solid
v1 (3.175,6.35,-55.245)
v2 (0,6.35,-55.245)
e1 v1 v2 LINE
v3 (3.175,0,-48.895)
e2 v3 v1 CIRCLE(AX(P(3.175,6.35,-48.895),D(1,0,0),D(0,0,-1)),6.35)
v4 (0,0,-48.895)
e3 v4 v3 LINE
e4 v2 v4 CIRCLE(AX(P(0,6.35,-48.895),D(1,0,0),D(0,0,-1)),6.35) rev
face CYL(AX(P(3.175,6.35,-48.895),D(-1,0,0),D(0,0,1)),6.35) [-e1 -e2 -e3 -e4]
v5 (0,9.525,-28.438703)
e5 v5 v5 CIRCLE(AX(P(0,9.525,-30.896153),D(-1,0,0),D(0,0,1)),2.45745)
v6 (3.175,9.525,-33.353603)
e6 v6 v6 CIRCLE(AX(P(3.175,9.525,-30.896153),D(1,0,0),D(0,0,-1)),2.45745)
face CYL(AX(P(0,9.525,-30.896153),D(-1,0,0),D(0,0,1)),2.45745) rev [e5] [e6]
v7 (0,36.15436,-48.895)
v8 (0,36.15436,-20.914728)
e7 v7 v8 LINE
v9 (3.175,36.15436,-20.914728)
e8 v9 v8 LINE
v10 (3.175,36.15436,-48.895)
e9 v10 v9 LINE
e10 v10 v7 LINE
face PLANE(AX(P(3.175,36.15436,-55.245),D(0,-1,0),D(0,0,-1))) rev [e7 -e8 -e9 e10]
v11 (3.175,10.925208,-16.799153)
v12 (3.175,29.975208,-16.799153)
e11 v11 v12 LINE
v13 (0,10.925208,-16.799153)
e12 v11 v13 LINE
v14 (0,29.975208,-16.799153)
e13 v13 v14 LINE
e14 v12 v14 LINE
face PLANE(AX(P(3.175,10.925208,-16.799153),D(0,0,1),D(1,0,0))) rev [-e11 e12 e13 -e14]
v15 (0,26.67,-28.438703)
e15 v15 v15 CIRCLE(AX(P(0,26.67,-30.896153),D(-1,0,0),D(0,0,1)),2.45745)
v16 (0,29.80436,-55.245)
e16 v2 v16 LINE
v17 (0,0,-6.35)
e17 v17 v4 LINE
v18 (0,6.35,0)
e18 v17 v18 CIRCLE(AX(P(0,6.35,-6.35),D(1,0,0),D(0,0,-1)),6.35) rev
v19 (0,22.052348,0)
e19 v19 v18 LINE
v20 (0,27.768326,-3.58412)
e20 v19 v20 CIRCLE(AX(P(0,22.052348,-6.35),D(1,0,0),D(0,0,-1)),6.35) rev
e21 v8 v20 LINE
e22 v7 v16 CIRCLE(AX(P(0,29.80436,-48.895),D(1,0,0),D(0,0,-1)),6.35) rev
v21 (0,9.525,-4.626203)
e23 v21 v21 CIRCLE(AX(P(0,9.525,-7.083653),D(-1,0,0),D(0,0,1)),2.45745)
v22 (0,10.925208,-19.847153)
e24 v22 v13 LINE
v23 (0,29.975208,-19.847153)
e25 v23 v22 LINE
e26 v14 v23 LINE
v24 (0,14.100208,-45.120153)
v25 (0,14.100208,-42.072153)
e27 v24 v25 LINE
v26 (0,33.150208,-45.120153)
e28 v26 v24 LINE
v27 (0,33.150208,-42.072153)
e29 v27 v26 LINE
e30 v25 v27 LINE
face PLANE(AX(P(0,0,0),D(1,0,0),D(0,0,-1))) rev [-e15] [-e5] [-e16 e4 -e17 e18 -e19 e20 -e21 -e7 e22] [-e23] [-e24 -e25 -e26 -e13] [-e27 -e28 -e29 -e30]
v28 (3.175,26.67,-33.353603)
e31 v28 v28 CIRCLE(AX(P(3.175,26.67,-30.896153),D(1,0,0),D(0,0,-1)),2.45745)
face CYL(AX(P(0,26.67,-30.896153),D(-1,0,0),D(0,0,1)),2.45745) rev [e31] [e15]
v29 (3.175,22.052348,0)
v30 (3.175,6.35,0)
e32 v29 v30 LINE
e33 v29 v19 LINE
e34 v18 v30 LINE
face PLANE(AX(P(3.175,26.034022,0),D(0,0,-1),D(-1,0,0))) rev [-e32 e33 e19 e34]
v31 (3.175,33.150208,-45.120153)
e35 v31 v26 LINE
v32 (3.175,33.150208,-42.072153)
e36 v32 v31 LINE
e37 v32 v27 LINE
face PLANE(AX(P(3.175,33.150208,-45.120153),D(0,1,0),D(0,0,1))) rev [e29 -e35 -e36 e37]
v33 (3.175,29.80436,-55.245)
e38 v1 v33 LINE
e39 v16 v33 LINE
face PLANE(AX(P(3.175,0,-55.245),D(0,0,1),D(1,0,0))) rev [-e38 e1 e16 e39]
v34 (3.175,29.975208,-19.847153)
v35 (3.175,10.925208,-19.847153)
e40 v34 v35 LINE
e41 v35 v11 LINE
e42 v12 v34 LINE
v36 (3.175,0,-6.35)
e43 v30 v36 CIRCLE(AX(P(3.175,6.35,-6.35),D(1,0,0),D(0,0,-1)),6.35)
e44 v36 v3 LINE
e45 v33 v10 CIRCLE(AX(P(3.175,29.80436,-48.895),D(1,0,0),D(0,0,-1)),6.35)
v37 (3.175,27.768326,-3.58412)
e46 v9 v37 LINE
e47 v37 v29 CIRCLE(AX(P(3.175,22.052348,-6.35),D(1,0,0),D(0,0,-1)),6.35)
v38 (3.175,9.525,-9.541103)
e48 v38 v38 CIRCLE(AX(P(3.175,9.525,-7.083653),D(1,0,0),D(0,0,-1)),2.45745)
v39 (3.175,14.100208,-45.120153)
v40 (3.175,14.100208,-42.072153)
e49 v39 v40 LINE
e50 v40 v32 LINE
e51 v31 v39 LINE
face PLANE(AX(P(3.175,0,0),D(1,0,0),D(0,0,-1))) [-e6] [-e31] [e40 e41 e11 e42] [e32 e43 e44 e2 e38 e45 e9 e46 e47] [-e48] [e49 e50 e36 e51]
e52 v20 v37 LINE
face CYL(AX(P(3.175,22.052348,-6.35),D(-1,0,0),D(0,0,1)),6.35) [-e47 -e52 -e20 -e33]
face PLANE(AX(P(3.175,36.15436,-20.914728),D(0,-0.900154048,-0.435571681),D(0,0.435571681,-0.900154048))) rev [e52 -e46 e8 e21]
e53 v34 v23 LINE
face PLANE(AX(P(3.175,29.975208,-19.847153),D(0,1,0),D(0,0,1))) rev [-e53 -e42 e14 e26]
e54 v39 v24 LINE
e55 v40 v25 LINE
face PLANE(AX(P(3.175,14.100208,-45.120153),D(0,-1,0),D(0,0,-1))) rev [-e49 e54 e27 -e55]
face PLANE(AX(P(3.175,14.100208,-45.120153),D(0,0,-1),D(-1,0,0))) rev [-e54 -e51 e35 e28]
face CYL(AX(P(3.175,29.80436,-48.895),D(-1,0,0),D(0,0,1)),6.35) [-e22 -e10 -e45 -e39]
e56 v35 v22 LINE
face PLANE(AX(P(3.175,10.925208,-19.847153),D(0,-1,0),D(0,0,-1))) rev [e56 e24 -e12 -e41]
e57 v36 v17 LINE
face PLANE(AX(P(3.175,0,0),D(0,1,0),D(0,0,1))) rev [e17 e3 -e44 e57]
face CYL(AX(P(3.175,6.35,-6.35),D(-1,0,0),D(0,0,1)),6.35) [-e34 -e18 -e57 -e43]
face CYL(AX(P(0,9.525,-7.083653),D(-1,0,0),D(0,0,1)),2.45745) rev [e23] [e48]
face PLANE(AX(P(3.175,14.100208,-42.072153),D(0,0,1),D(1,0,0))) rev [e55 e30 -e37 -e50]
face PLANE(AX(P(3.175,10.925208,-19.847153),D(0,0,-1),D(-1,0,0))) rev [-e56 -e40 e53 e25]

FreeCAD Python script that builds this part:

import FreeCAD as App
import Part
import Sketcher
from FreeCAD import Vector
Q = App.Units.Quantity


def edges_at(feature, points):
    """Names of the edges that pass closest to the given points."""
    edges = feature.Shape.Edges
    near = lambda p: min(range(len(edges)), key=lambda i: edges[i].distToShape(Part.Vertex(*p))[0])
    return sorted({f"Edge{near(p) + 1}" for p in points})

doc = App.newDocument("Part")
body = doc.addObject("PartDesign::Body", "Body")

# Sketch on YZ plane
sketch1 = body.newObject("Sketcher::SketchObject", "Sketch")
sketch1.AttachmentSupport = (doc.getObject("YZ_Plane"), [""])
sketch1.MapMode = "FlatFace"
sketch1.addGeometry(Part.LineSegment(Vector(0, -55.245, 0), Vector(36.15436, -55.245, 0)), False)
sketch1.addGeometry(Part.LineSegment(Vector(36.15436, -55.245, 0), Vector(36.15436, -20.914728, 0)), False)
sketch1.addGeometry(Part.LineSegment(Vector(36.15436, -20.914728, 0), Vector(26.034022, 0, 0)), False)
sketch1.addGeometry(Part.LineSegment(Vector(26.034022, 0, 0), Vector(0, 0, 0)), False)
sketch1.addGeometry(Part.LineSegment(Vector(0, 0, 0), Vector(0, -55.245, 0)), False)
sketch1.addConstraint(Sketcher.Constraint("Coincident", 0, 2, 1, 1))
sketch1.addConstraint(Sketcher.Constraint("Coincident", 1, 2, 2, 1))
sketch1.addConstraint(Sketcher.Constraint("Coincident", 2, 2, 3, 1))
sketch1.addConstraint(Sketcher.Constraint("Coincident", 3, 2, 4, 1))
sketch1.addConstraint(Sketcher.Constraint("Coincident", 4, 2, 0, 1))
sketch1.addConstraint(Sketcher.Constraint("Horizontal", 0))
sketch1.addConstraint(Sketcher.Constraint("Vertical", 1))
sketch1.addConstraint(Sketcher.Constraint("Horizontal", 3))
sketch1.addConstraint(Sketcher.Constraint("Vertical", 4))
sketch1.addConstraint(Sketcher.Constraint("Coincident", 3, 2, -1, 1))
sketch1.addConstraint(Sketcher.Constraint("DistanceY", 4, 2, 4, 1, Q("2.175 in")))
sketch1.addConstraint(Sketcher.Constraint("DistanceX", 0, 1, 0, 2, Q("1.4234 in")))
sketch1.addConstraint(Sketcher.Constraint("DistanceX", 3, 2, 3, 1, 26.034022))
sketch1.addConstraint(Sketcher.Constraint("DistanceY", 1, 1, 1, 2, 34.330272))
pad1 = body.newObject("PartDesign::Pad", "Pad")
pad1.Profile = sketch1
pad1.Length = Q("0.125 in")

# Sketch on YZ plane
sketch2 = body.newObject("Sketcher::SketchObject", "Sketch001")
sketch2.AttachmentSupport = (doc.getObject("YZ_Plane"), [""])
sketch2.MapMode = "FlatFace"
sketch2.addGeometry(Part.LineSegment(Vector(33.150208, -45.120153, 0), Vector(14.100208, -45.120153, 0)), False)
sketch2.addGeometry(Part.LineSegment(Vector(14.100208, -45.120153, 0), Vector(14.100208, -42.072153, 0)), False)
sketch2.addGeometry(Part.LineSegment(Vector(14.100208, -42.072153, 0), Vector(33.150208, -42.072153, 0)), False)
sketch2.addGeometry(Part.LineSegment(Vector(33.150208, -42.072153, 0), Vector(33.150208, -45.120153, 0)), False)
sketch2.addGeometry(Part.LineSegment(Vector(29.975208, -19.847153, 0), Vector(10.925208, -19.847153, 0)), False)
sketch2.addGeometry(Part.LineSegment(Vector(10.925208, -19.847153, 0), Vector(10.925208, -16.799153, 0)), False)
sketch2.addGeometry(Part.LineSegment(Vector(10.925208, -16.799153, 0), Vector(29.975208, -16.799153, 0)), False)
sketch2.addGeometry(Part.LineSegment(Vector(29.975208, -16.799153, 0), Vector(29.975208, -19.847153, 0)), False)
sketch2.addConstraint(Sketcher.Constraint("Coincident", 0, 2, 1, 1))
sketch2.addConstraint(Sketcher.Constraint("Coincident", 1, 2, 2, 1))
sketch2.addConstraint(Sketcher.Constraint("Coincident", 2, 2, 3, 1))
sketch2.addConstraint(Sketcher.Constraint("Coincident", 3, 2, 0, 1))
sketch2.addConstraint(Sketcher.Constraint("Coincident", 4, 2, 5, 1))
sketch2.addConstraint(Sketcher.Constraint("Coincident", 5, 2, 6, 1))
sketch2.addConstraint(Sketcher.Constraint("Coincident", 6, 2, 7, 1))
sketch2.addConstraint(Sketcher.Constraint("Coincident", 7, 2, 4, 1))
sketch2.addConstraint(Sketcher.Constraint("Horizontal", 0))
sketch2.addConstraint(Sketcher.Constraint("Vertical", 1))
sketch2.addConstraint(Sketcher.Constraint("Horizontal", 2))
sketch2.addConstraint(Sketcher.Constraint("Vertical", 3))
sketch2.addConstraint(Sketcher.Constraint("Horizontal", 4))
sketch2.addConstraint(Sketcher.Constraint("Vertical", 5))
sketch2.addConstraint(Sketcher.Constraint("Horizontal", 6))
sketch2.addConstraint(Sketcher.Constraint("Vertical", 7))
sketch2.addConstraint(Sketcher.Constraint("Equal", 2, 4))
sketch2.addConstraint(Sketcher.Constraint("Equal", 3, 5))
sketch2.addConstraint(Sketcher.Constraint("DistanceX", 0, 2, 0, 1, Q("0.75 in")))
sketch2.addConstraint(Sketcher.Constraint("DistanceY", 1, 1, 1, 2, Q("0.12 in")))
sketch2.addConstraint(Sketcher.Constraint("DistanceX", 4, 2, 1, 2, Q("0.125 in")))
sketch2.addConstraint(Sketcher.Constraint("DistanceY", 1, 2, 4, 2, Q("0.875 in")))
sketch2.addConstraint(Sketcher.Constraint("DistanceX", -1, 1, 0, 2, 14.100208))
sketch2.addConstraint(Sketcher.Constraint("DistanceY", 0, 2, -1, 1, 45.120153))
pocket1 = body.newObject("PartDesign::Pocket", "Pocket")
pocket1.Profile = sketch2
pocket1.Length = Q("0.125 in")
pocket1.Reversed = True
doc.recompute()

fillet = body.newObject("PartDesign::Fillet", "Fillet")
fillet.Base = (pocket1, edges_at(pocket1, [
    (1.587, 0, 0),
    (1.587, 26.034, 0),
    (1.587, 36.154, -55.245),
    (1.587, 0, -55.245),
]))
fillet.Radius = Q("0.25 in")

# Sketch on YZ plane
sketch3 = body.newObject("Sketcher::SketchObject", "Sketch002")
sketch3.AttachmentSupport = (doc.getObject("YZ_Plane"), [""])
sketch3.MapMode = "FlatFace"
sketch3.addGeometry(Part.Circle(Vector(9.525, -30.896153, 0), Vector(0, 0, 1), 2.45745), False)
sketch3.addGeometry(Part.Circle(Vector(26.67, -30.896153, 0), Vector(0, 0, 1), 2.45745), False)
sketch3.addGeometry(Part.Circle(Vector(9.525, -7.083653, 0), Vector(0, 0, 1), 2.45745), False)
sketch3.addConstraint(Sketcher.Constraint("Equal", 0, 1))
sketch3.addConstraint(Sketcher.Constraint("Equal", 1, 2))
sketch3.addConstraint(Sketcher.Constraint("Horizontal", 0, 3, 1, 3))
sketch3.addConstraint(Sketcher.Constraint("Vertical", 0, 3, 2, 3))
sketch3.addConstraint(Sketcher.Constraint("Diameter", 0, Q("0.1935 in")))
sketch3.addConstraint(Sketcher.Constraint("DistanceX", -1, 1, 1, 3, Q("1.05 in")))
sketch3.addConstraint(Sketcher.Constraint("DistanceX", -1, 1, 0, 3, Q("0.375 in")))
sketch3.addConstraint(Sketcher.Constraint("DistanceY", 0, 3, 2, 3, Q("0.9375 in")))
sketch3.addConstraint(Sketcher.Constraint("DistanceY", 0, 3, -1, 1, 30.896153))
doc.recompute()
hole = body.newObject("PartDesign::Hole", "Hole")
hole.Profile = sketch3
hole.ThreadType = "None"
hole.Diameter = Q("0.1935 in")
hole.DepthType = "Dimension"
hole.Depth = 9.699415
hole.DrillPoint = "Angled"
hole.DrillPointAngle = 118
hole.Reversed = True

doc.recompute()
